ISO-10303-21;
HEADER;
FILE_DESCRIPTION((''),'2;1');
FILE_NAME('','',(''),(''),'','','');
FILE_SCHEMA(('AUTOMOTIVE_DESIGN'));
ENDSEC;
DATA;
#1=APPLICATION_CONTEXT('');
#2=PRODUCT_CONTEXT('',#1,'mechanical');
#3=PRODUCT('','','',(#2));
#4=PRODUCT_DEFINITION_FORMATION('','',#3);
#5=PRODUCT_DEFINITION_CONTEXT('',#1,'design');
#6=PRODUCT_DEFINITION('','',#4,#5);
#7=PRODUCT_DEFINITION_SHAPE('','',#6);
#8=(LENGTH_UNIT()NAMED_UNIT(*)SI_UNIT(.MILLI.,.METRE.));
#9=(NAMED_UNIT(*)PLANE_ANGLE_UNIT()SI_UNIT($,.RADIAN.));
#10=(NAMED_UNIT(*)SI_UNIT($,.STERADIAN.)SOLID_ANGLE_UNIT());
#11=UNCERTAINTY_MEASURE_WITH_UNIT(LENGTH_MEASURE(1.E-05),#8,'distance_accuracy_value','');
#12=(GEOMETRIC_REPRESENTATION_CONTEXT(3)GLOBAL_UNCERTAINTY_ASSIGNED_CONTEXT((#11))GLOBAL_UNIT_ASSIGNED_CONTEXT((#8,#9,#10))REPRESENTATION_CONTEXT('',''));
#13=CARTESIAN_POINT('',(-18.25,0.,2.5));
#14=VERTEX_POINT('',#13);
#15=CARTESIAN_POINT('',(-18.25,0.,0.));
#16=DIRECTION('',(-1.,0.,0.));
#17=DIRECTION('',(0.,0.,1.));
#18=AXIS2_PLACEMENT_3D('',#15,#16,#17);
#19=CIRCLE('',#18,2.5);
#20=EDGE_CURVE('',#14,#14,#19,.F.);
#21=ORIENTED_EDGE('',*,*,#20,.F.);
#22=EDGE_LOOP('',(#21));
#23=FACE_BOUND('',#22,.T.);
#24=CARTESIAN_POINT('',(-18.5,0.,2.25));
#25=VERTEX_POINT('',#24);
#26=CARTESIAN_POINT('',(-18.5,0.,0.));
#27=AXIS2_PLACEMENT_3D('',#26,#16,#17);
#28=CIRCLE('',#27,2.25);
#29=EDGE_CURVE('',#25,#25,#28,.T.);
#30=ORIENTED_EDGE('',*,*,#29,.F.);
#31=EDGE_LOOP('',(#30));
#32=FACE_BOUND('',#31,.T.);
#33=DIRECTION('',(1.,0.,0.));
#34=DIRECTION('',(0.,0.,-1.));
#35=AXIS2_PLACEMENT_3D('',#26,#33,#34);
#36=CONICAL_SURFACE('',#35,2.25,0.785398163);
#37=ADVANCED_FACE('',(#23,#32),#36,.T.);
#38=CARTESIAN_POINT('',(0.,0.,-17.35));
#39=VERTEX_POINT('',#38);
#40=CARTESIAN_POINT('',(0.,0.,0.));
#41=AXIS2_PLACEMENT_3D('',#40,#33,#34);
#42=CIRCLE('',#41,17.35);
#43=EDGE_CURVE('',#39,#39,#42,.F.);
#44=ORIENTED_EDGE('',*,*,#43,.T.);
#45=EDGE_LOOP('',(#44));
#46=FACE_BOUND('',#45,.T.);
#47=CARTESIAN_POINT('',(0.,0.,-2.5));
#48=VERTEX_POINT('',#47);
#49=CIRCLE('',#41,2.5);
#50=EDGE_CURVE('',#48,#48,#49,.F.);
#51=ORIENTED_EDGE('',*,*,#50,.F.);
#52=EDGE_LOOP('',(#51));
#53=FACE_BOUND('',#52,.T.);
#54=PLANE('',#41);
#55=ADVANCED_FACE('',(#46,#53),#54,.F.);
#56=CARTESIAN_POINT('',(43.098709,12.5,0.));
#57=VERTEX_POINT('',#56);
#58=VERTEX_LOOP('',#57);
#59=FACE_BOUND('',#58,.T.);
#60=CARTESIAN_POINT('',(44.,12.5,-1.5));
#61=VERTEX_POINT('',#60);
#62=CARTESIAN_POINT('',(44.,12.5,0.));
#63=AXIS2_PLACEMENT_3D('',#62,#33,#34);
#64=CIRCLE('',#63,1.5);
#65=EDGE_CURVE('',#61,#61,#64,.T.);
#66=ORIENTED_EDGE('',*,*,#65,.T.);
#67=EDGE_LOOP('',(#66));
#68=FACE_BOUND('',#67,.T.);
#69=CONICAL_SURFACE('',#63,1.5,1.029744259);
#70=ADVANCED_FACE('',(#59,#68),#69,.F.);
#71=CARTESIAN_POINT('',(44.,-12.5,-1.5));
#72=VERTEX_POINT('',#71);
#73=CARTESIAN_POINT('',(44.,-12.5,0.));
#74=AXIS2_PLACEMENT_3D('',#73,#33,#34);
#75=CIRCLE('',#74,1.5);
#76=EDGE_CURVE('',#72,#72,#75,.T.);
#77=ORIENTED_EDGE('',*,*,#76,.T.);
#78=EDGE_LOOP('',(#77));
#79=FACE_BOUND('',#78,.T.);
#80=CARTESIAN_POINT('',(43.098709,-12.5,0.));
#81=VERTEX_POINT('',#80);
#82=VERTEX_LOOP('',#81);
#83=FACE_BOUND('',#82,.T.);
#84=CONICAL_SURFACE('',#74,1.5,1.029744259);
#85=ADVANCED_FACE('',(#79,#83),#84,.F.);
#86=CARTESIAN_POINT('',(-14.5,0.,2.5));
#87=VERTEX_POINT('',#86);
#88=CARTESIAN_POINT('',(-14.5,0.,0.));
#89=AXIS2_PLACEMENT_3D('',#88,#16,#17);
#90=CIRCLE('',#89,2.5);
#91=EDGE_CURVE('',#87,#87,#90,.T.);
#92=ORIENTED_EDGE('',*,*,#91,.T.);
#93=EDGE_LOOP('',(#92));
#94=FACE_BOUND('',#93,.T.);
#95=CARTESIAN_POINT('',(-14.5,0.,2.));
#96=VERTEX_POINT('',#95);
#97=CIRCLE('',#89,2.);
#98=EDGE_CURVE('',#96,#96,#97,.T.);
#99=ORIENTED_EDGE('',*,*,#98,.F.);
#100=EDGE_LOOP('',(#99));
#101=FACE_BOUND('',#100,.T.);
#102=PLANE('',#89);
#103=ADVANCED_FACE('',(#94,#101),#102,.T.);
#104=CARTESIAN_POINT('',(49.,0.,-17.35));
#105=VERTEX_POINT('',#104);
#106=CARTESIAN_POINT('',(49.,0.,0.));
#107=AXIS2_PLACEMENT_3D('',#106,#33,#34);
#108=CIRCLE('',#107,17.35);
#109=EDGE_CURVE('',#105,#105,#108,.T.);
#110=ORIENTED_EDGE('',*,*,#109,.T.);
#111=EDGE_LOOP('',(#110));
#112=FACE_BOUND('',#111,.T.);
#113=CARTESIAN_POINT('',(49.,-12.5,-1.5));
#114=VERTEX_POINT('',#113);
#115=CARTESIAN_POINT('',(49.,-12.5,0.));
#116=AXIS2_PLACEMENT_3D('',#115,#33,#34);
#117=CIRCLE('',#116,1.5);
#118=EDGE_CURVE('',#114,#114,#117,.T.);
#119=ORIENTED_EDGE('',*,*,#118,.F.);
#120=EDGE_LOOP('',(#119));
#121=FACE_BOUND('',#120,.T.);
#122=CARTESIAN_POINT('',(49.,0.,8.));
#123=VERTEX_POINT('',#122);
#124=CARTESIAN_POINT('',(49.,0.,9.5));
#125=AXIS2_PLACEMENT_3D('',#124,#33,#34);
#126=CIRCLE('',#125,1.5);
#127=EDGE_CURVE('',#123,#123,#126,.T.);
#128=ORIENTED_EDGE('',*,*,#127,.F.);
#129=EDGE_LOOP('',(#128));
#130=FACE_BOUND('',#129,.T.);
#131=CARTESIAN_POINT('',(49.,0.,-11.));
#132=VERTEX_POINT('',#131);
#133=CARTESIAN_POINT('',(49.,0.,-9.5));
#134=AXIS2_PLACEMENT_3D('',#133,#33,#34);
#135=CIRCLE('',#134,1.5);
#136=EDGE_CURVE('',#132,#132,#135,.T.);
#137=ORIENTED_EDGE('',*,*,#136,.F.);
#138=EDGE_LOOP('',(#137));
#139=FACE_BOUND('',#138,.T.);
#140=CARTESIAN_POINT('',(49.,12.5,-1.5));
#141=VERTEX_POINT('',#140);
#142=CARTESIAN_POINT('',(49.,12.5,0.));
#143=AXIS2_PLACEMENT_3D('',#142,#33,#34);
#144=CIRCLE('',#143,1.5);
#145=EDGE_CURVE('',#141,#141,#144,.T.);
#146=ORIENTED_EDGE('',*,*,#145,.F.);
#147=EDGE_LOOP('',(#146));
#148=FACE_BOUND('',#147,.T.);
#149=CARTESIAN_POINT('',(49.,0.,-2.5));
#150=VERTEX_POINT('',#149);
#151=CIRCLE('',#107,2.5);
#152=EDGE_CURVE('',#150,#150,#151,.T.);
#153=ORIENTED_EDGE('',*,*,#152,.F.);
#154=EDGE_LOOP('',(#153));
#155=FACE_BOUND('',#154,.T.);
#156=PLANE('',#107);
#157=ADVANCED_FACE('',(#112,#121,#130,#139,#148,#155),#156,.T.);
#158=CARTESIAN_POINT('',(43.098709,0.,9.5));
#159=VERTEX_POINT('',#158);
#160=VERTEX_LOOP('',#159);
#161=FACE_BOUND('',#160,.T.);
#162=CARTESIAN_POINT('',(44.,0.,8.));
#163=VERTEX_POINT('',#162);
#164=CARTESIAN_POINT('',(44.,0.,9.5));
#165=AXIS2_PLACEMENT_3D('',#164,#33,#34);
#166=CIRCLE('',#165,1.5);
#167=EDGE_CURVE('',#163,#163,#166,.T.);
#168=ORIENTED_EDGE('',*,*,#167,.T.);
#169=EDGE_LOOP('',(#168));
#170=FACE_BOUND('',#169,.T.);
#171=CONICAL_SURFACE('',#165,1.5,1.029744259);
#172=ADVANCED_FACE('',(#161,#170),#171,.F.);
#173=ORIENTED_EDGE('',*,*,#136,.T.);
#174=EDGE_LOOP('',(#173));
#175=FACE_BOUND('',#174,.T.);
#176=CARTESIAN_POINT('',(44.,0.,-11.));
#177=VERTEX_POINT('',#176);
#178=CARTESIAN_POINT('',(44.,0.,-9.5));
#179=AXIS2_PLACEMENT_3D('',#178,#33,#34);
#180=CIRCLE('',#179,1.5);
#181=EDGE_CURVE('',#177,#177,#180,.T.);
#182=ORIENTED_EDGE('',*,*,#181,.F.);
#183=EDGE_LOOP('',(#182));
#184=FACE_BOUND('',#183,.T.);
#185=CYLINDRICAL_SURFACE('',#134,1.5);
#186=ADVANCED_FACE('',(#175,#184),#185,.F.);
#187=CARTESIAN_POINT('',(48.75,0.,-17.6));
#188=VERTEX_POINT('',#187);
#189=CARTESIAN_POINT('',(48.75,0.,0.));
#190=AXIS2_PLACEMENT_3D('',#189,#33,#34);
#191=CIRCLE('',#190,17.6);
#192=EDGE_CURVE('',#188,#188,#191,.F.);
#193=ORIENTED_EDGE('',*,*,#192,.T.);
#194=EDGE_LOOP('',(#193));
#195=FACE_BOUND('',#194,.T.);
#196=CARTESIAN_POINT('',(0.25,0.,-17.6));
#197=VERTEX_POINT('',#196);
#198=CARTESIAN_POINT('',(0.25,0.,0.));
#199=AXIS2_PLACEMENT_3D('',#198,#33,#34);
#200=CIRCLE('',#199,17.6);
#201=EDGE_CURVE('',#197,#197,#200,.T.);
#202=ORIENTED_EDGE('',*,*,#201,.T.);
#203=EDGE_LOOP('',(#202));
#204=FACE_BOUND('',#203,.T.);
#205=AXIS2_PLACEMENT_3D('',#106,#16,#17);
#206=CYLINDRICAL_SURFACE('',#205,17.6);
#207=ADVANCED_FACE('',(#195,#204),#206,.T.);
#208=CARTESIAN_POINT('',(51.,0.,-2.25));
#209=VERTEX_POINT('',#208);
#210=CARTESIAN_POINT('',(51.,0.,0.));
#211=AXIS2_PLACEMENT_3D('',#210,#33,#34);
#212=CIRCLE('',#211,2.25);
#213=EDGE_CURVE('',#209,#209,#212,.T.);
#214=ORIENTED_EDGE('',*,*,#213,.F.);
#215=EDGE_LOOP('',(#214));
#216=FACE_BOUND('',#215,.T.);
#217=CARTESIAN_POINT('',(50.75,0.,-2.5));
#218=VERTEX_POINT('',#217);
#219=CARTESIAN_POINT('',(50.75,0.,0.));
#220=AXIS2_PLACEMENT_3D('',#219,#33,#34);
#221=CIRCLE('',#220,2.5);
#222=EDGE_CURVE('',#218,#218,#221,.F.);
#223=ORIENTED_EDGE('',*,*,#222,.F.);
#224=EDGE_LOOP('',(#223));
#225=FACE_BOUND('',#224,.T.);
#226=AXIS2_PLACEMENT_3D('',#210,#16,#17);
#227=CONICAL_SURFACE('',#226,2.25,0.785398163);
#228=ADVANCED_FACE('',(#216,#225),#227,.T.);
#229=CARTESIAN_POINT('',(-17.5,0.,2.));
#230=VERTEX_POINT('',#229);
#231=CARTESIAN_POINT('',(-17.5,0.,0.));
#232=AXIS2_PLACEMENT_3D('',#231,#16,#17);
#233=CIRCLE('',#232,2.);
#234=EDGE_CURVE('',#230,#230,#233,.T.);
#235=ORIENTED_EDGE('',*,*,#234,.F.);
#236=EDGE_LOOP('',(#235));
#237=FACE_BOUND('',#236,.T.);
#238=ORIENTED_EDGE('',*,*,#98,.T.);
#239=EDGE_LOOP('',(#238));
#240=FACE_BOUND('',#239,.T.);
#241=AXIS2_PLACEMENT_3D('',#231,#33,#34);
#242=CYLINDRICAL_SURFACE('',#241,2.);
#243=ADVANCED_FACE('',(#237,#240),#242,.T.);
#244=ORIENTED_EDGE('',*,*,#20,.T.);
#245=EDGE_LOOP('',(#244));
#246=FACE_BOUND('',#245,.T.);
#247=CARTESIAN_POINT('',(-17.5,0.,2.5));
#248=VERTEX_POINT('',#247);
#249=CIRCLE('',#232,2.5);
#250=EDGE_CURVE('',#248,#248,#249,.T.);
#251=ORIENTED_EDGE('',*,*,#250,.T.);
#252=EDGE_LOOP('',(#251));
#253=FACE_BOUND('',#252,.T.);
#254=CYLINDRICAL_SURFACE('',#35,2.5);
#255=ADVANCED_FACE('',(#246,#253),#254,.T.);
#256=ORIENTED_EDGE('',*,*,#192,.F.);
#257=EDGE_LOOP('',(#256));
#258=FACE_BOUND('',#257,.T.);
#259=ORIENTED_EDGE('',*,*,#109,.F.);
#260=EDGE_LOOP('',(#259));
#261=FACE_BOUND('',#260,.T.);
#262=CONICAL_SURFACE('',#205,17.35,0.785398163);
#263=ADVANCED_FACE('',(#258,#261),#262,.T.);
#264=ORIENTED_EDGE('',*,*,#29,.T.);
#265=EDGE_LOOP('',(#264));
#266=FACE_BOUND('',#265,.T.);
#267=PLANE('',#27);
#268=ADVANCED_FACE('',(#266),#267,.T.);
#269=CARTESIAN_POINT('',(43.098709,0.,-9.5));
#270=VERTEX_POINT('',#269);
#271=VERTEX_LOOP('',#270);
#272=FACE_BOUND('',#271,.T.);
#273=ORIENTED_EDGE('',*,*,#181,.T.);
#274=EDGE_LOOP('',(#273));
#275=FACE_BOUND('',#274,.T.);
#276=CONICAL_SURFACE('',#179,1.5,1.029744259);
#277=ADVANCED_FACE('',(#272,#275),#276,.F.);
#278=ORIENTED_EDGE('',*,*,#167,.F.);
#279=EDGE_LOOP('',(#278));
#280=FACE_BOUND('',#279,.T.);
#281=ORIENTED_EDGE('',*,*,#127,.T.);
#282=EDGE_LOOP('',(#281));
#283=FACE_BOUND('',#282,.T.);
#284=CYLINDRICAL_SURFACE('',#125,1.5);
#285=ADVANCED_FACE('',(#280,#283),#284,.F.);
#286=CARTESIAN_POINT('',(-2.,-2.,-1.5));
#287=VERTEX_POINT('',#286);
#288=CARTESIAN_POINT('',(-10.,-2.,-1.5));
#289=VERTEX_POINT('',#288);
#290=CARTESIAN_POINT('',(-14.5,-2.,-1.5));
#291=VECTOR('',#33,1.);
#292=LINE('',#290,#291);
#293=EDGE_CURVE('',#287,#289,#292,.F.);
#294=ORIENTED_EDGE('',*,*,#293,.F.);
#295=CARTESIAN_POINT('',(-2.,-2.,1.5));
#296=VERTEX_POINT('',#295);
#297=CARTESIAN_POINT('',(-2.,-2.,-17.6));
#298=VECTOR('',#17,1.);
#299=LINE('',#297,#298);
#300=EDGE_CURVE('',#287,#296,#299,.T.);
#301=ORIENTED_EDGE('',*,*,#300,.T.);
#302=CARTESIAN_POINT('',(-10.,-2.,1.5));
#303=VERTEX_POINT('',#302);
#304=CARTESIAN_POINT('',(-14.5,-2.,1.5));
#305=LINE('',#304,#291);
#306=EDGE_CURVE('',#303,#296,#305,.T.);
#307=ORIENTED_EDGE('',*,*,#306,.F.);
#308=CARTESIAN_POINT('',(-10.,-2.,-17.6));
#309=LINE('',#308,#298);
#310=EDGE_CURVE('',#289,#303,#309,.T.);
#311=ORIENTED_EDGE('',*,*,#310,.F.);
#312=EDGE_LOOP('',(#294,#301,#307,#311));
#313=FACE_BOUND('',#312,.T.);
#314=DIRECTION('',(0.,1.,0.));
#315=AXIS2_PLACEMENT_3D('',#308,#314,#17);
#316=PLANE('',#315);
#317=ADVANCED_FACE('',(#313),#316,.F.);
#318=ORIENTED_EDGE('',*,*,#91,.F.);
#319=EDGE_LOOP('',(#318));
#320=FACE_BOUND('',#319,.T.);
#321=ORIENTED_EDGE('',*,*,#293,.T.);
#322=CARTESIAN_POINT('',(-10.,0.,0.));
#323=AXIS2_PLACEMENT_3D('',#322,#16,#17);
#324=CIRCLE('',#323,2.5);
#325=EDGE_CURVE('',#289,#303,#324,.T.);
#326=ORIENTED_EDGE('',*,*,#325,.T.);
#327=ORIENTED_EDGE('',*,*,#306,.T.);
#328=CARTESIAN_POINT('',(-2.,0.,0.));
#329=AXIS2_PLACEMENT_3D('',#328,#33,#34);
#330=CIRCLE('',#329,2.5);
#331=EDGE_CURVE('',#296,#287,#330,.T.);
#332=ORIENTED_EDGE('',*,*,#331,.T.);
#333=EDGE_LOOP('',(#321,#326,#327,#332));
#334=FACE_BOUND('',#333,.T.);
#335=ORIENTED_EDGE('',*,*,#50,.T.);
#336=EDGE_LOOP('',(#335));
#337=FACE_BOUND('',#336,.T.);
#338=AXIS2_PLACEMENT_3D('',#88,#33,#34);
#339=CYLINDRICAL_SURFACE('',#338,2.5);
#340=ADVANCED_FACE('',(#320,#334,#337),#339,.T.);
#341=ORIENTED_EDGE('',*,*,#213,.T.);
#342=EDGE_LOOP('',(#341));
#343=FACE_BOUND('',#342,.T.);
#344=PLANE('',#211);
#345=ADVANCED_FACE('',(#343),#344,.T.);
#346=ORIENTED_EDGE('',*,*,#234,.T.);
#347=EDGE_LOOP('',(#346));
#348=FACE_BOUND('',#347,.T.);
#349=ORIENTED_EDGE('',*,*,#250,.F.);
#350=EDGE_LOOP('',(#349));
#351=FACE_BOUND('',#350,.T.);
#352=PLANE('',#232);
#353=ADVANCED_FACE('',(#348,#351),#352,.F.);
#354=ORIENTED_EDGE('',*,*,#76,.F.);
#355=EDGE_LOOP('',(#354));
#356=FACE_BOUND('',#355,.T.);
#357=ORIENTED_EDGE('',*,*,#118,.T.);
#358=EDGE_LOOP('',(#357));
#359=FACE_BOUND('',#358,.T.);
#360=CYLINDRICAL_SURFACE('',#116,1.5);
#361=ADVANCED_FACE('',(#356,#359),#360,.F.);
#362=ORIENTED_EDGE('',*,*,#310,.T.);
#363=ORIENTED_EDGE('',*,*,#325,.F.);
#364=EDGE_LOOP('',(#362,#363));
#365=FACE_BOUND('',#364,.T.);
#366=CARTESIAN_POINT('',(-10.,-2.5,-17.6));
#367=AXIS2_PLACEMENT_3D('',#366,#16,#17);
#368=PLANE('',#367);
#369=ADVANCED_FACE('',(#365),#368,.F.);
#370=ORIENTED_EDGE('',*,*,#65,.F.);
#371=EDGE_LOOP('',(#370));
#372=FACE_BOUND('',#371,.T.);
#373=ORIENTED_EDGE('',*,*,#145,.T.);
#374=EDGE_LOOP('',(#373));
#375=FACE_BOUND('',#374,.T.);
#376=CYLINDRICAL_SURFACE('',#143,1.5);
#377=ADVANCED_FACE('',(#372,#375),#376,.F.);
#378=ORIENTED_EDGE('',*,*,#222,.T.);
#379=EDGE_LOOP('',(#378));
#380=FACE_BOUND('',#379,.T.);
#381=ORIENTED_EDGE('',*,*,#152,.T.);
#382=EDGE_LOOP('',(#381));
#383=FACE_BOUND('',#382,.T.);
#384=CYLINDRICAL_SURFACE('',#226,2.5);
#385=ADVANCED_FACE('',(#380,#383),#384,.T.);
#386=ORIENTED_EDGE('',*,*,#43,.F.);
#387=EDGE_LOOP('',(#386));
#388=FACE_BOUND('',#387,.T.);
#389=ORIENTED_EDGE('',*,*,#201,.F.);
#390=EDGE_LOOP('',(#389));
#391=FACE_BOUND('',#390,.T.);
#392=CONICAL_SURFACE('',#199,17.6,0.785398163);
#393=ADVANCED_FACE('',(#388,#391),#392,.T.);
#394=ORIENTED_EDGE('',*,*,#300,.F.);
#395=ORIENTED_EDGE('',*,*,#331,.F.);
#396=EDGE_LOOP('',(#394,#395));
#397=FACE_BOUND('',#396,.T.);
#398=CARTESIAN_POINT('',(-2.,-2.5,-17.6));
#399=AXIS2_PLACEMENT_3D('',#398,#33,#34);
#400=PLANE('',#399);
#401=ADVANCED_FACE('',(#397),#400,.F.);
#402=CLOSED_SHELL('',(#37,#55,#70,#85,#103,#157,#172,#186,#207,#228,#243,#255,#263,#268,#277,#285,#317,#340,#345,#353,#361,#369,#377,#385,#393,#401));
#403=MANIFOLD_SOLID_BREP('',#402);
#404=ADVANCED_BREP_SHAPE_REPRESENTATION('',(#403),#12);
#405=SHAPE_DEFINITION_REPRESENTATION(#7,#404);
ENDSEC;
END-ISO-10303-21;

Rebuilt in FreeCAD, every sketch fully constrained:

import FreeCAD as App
import Part
import Sketcher
from FreeCAD import Vector
Q = App.Units.Quantity


def edges_at(feature, points):
    """Names of the edges that pass closest to the given points."""
    edges = feature.Shape.Edges
    near = lambda p: min(range(len(edges)), key=lambda i: edges[i].distToShape(Part.Vertex(*p))[0])
    return sorted({f"Edge{near(p) + 1}" for p in points})

doc = App.newDocument("Part")
params = doc.addObject("Spreadsheet::Sheet", "Params")
for row, (alias, value) in enumerate([
    ("sketch1_diameter", "35.2 mm"),
    ("pad1_length", "49 mm"),
    ("sketch2_diameter", "3 mm"),
    ("hole_diameter", "3 mm"),
    ("hole_depth", "5 mm"),
    ("sketch3_diameter", "5 mm"),
    ("pad2_length", "2 mm"),
    ("sketch4_diameter", "5 mm"),
    ("pad3_length", "14.5 mm"),
    ("sketch5_diameter", "4 mm"),
    ("pad4_length", "3 mm"),
    ("sketch6_diameter", "5 mm"),
    ("pad5_length", "1 mm"),
    ("chamfer_size", "0.25 mm"),
    ("sketch7_width", "8 mm"),
    ("sketch7_height", "0.5 mm"),
], start=1):
    params.set(f"A{row}", alias)
    params.set(f"B{row}", "=" + value)
    params.setAlias(f"B{row}", alias)

body = doc.addObject("PartDesign::Body", "Body")

# Sketch on YZ plane
sketch1 = body.newObject("Sketcher::SketchObject", "Sketch")
sketch1.AttachmentSupport = (doc.getObject("YZ_Plane"), [""])
sketch1.MapMode = "FlatFace"
sketch1.addGeometry(Part.Circle(Vector(0, 0, 0), Vector(0, 0, 1), 18), False)
sketch1.addConstraint([
    Sketcher.Constraint("Coincident", 0, 3, -1, 1),
    Sketcher.Constraint("Diameter", 0, Q("35.2 mm")),
])
sketch1.setExpression("Constraints[1]", "Params.sketch1_diameter")
pad1 = body.newObject("PartDesign::Pad", "Pad")
pad1.Profile = sketch1
pad1.setExpression("Length", "Params.pad1_length")

# Sketch on YZ plane
sketch2 = body.newObject("Sketcher::SketchObject", "Sketch001")
sketch2.AttachmentSupport = (doc.getObject("YZ_Plane"), [""])
sketch2.MapMode = "FlatFace"
sketch2.AttachmentOffset = App.Placement(Vector(0, 0, 49), App.Rotation())
sketch2.addGeometry([
    Part.Circle(Vector(12.5, 0, 0), Vector(0, 0, 1), 1.5),
    Part.Circle(Vector(0, -9.5, 0), Vector(0, 0, 1), 1.5),
    Part.Circle(Vector(-12.5, 0, 0), Vector(0, 0, 1), 1.5),
    Part.Circle(Vector(0, 9.5, 0), Vector(0, 0, 1), 1.5),
], False)
sketch2.addConstraint([
    Sketcher.Constraint("Equal", 0, 1),
    Sketcher.Constraint("Equal", 1, 2),
    Sketcher.Constraint("Equal", 2, 3),
    Sketcher.Constraint("Symmetric", 0, 3, 2, 3, -1, 1),
    Sketcher.Constraint("Symmetric", 1, 3, 3, 3, -1, 1),
    Sketcher.Constraint("PointOnObject", 0, 3, -1),
    Sketcher.Constraint("PointOnObject", 1, 3, -2),
    Sketcher.Constraint("Diameter", 0, Q("3 mm")),
    Sketcher.Constraint("DistanceX", 2, 3, 0, 3, Q("25 mm")),
    Sketcher.Constraint("DistanceY", 1, 3, 3, 3, Q("19 mm")),
])
sketch2.setExpression("Constraints[7]", "Params.sketch2_diameter")
doc.recompute()
hole = body.newObject("PartDesign::Hole", "Hole")
hole.Profile = sketch2
hole.ThreadType = "None"
hole.setExpression("Diameter", "Params.hole_diameter")
hole.DepthType = "Dimension"
hole.setExpression("Depth", "Params.hole_depth")
hole.DrillPoint = "Angled"
hole.DrillPointAngle = 118

# Sketch on YZ plane
sketch3 = body.newObject("Sketcher::SketchObject", "Sketch002")
sketch3.AttachmentSupport = (doc.getObject("YZ_Plane"), [""])
sketch3.MapMode = "FlatFace"
sketch3.AttachmentOffset = App.Placement(Vector(0, 0, 49), App.Rotation())
sketch3.addGeometry(Part.Circle(Vector(0, 0, 0), Vector(0, 0, 1), 2.5), False)
sketch3.addConstraint([
    Sketcher.Constraint("Coincident", 0, 3, -1, 1),
    Sketcher.Constraint("Diameter", 0, Q("5 mm")),
])
sketch3.setExpression("Constraints[1]", "Params.sketch3_diameter")
pad2 = body.newObject("PartDesign::Pad", "Pad001")
pad2.Profile = sketch3
pad2.setExpression("Length", "Params.pad2_length")

# Sketch on YZ plane
sketch4 = body.newObject("Sketcher::SketchObject", "Sketch003")
sketch4.AttachmentSupport = (doc.getObject("YZ_Plane"), [""])
sketch4.MapMode = "FlatFace"
sketch4.AttachmentOffset = App.Placement(Vector(0, 0, -14.5), App.Rotation())
sketch4.addGeometry(Part.Circle(Vector(0, 0, 0), Vector(0, 0, 1), 2.5), False)
sketch4.addConstraint([
    Sketcher.Constraint("Coincident", 0, 3, -1, 1),
    Sketcher.Constraint("Diameter", 0, Q("5 mm")),
])
sketch4.setExpression("Constraints[1]", "Params.sketch4_diameter")
pad3 = body.newObject("PartDesign::Pad", "Pad002")
pad3.Profile = sketch4
pad3.setExpression("Length", "Params.pad3_length")

# Sketch on YZ plane
sketch5 = body.newObject("Sketcher::SketchObject", "Sketch004")
sketch5.AttachmentSupport = (doc.getObject("YZ_Plane"), [""])
sketch5.MapMode = "FlatFace"
sketch5.AttachmentOffset = App.Placement(Vector(0, 0, -14.5), App.Rotation())
sketch5.addGeometry(Part.Circle(Vector(0, 0, 0), Vector(0, 0, 1), 2), False)
sketch5.addConstraint([
    Sketcher.Constraint("Coincident", 0, 3, -1, 1),
    Sketcher.Constraint("Diameter", 0, Q("4 mm")),
])
sketch5.setExpression("Constraints[1]", "Params.sketch5_diameter")
pad4 = body.newObject("PartDesign::Pad", "Pad003")
pad4.Profile = sketch5
pad4.setExpression("Length", "Params.pad4_length")
pad4.Reversed = True

# Sketch on YZ plane
sketch6 = body.newObject("Sketcher::SketchObject", "Sketch005")
sketch6.AttachmentSupport = (doc.getObject("YZ_Plane"), [""])
sketch6.MapMode = "FlatFace"
sketch6.AttachmentOffset = App.Placement(Vector(0, 0, -18.5), App.Rotation())
sketch6.addGeometry(Part.Circle(Vector(0, 0, 0), Vector(0, 0, 1), 2.5), False)
sketch6.addConstraint([
    Sketcher.Constraint("Coincident", 0, 3, -1, 1),
    Sketcher.Constraint("Diameter", 0, Q("5 mm")),
])
sketch6.setExpression("Constraints[1]", "Params.sketch6_diameter")
pad5 = body.newObject("PartDesign::Pad", "Pad004")
pad5.Profile = sketch6
pad5.setExpression("Length", "Params.pad5_length")
doc.recompute()

chamfer = body.newObject("PartDesign::Chamfer", "Chamfer")
chamfer.Base = (pad5, edges_at(pad5, [
    (0, 0, 17.6),
    (51, 0, 2.5),
    (-18.5, 0, 2.5),
    (49, 0, 17.6),
]))
chamfer.setExpression("Size", "Params.chamfer_size")

# Sketch on XY plane
sketch7 = body.newObject("Sketcher::SketchObject", "Sketch006")
sketch7.AttachmentSupport = (doc.getObject("XY_Plane"), [""])
sketch7.MapMode = "FlatFace"
sketch7.addGeometry([
    Part.LineSegment(Vector(-10, -2, 0), Vector(-10, -2.5, 0)),
    Part.LineSegment(Vector(-10, -2.5, 0), Vector(-2, -2.5, 0)),
    Part.LineSegment(Vector(-2, -2.5, 0), Vector(-2, -2, 0)),
    Part.LineSegment(Vector(-2, -2, 0), Vector(-10, -2, 0)),
], False)
sketch7.addConstraint([
    Sketcher.Constraint("Coincident", 0, 2, 1, 1),
    Sketcher.Constraint("Coincident", 1, 2, 2, 1),
    Sketcher.Constraint("Coincident", 2, 2, 3, 1),
    Sketcher.Constraint("Coincident", 3, 2, 0, 1),
    Sketcher.Constraint("Vertical", 0),
    Sketcher.Constraint("Horizontal", 1),
    Sketcher.Constraint("Vertical", 2),
    Sketcher.Constraint("Horizontal", 3),
    Sketcher.Constraint("DistanceX", 1, 1, 1, 2, Q("8 mm")),
    Sketcher.Constraint("DistanceY", 0, 2, 0, 1, Q("0.5 mm")),
    Sketcher.Constraint("DistanceX", 0, 2, -1, 1, Q("10 mm")),
    Sketcher.Constraint("DistanceY", 2, 2, -1, 1, Q("2 mm")),
])
sketch7.setExpression("Constraints[8]", "Params.sketch7_width")
sketch7.setExpression("Constraints[9]", "Params.sketch7_height")
pocket1 = body.newObject("PartDesign::Pocket", "Pocket")
pocket1.Profile = sketch7
pocket1.Type = "ThroughAll"
pocket1.Midplane = True

doc.recompute()
